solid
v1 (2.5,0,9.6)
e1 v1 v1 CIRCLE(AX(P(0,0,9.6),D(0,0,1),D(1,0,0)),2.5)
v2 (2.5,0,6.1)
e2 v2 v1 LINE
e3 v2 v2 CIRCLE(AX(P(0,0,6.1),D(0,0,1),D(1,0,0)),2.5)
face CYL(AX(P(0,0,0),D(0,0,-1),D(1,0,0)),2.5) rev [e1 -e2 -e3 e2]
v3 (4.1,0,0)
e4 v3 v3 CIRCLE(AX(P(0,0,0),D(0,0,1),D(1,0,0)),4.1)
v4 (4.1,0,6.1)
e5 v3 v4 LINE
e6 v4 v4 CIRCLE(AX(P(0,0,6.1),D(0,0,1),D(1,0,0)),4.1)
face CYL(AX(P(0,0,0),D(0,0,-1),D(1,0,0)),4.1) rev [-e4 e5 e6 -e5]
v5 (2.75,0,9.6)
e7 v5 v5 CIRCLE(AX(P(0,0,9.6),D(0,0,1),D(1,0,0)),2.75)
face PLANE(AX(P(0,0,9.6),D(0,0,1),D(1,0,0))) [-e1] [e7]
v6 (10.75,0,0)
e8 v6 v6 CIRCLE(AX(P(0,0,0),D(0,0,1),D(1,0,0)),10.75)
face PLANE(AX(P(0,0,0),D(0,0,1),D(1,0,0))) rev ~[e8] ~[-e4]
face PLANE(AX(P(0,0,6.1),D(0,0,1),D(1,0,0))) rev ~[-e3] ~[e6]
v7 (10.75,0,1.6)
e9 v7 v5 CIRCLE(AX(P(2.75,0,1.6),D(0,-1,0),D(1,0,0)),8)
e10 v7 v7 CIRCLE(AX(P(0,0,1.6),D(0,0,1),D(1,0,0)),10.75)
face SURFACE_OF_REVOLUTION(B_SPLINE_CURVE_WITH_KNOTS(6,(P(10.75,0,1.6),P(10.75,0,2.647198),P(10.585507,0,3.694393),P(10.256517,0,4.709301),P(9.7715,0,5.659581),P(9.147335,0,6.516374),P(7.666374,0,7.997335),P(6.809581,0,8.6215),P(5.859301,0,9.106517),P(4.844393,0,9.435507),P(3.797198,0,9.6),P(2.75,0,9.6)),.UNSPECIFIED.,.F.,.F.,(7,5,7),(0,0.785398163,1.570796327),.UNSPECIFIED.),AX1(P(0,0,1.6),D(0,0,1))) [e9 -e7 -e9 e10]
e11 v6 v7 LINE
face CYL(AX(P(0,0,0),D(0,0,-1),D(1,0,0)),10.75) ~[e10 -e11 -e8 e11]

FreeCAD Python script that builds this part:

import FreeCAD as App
import Part
import Sketcher

V = App.Vector


def edges_at(feature, points):
    """Names of the edges that pass closest to the given points."""
    edges = feature.Shape.Edges
    near = lambda p: min(range(len(edges)), key=lambda i: edges[i].distToShape(Part.Vertex(*p))[0])
    return sorted({f"Edge{near(p) + 1}" for p in points})

doc = App.newDocument("Part")
body = doc.addObject("PartDesign::Body", "Body")

sketch1 = body.newObject("Sketcher::SketchObject", "Sketch")
sketch1.AttachmentSupport = (doc.getObject("XY_Plane"), [""])
sketch1.MapMode = "FlatFace"
sketch1.addGeometry([
    Part.Circle(V(0, 0, 0), V(0, 0, 1), 10.75),
    Part.Circle(V(0, 0, 0), V(0, 0, 1), 2.5),
], False)
sketch1.addConstraint([
    Sketcher.Constraint("Coincident", 0, 3, -1, 1),
    Sketcher.Constraint("Coincident", 1, 3, -1, 1),
    Sketcher.Constraint("Diameter", 1, 5.0),
    Sketcher.Constraint("Diameter", 0, 21.5),
])
pad1 = body.newObject("PartDesign::Pad", "Pad")
pad1.Profile = sketch1
pad1.Length = 9.6
doc.recompute()

fillet = body.newObject("PartDesign::Fillet", "Fillet")
fillet.Base = (pad1, edges_at(pad1, [(-10.75, 0, 9.6)]))
fillet.Radius = 8

sketch2 = body.newObject("Sketcher::SketchObject", "Sketch001")
sketch2.AttachmentSupport = (doc.getObject("XY_Plane"), [""])
sketch2.MapMode = "FlatFace"
sketch2.addGeometry(Part.Circle(V(0, 0, 0), V(0, 0, 1), 2.5), False)
sketch2.addConstraint([
    Sketcher.Constraint("Coincident", 0, 3, -1, 1),
    Sketcher.Constraint("Diameter", 0, 5.0),
])
pocket1 = body.newObject("PartDesign::Pocket", "Pocket")
pocket1.Profile = sketch2
pocket1.Length = 25

sketch3 = body.newObject("Sketcher::SketchObject", "Sketch002")
sketch3.AttachmentSupport = (doc.getObject("XY_Plane"), [""])
sketch3.MapMode = "FlatFace"
sketch3.addGeometry([
    Part.Circle(V(0, 0, 0), V(0, 0, 1), 4.1),
    Part.Circle(V(0, 0, 0), V(0, 0, 1), 2.5),
], False)
sketch3.addConstraint([
    Sketcher.Constraint("Coincident", 0, 3, -1, 1),
    Sketcher.Constraint("Coincident", 1, 3, -1, 1),
    Sketcher.Constraint("Diameter", 1, 5.0),
    Sketcher.Constraint("Diameter", 0, 8.2),
])
pocket2 = body.newObject("PartDesign::Pocket", "Pocket001")
pocket2.Profile = sketch3
pocket2.Type = "TwoLengths"
pocket2.Length = 6.1
pocket2.Length2 = 13.5
pocket2.Reversed = True

doc.recompute()
